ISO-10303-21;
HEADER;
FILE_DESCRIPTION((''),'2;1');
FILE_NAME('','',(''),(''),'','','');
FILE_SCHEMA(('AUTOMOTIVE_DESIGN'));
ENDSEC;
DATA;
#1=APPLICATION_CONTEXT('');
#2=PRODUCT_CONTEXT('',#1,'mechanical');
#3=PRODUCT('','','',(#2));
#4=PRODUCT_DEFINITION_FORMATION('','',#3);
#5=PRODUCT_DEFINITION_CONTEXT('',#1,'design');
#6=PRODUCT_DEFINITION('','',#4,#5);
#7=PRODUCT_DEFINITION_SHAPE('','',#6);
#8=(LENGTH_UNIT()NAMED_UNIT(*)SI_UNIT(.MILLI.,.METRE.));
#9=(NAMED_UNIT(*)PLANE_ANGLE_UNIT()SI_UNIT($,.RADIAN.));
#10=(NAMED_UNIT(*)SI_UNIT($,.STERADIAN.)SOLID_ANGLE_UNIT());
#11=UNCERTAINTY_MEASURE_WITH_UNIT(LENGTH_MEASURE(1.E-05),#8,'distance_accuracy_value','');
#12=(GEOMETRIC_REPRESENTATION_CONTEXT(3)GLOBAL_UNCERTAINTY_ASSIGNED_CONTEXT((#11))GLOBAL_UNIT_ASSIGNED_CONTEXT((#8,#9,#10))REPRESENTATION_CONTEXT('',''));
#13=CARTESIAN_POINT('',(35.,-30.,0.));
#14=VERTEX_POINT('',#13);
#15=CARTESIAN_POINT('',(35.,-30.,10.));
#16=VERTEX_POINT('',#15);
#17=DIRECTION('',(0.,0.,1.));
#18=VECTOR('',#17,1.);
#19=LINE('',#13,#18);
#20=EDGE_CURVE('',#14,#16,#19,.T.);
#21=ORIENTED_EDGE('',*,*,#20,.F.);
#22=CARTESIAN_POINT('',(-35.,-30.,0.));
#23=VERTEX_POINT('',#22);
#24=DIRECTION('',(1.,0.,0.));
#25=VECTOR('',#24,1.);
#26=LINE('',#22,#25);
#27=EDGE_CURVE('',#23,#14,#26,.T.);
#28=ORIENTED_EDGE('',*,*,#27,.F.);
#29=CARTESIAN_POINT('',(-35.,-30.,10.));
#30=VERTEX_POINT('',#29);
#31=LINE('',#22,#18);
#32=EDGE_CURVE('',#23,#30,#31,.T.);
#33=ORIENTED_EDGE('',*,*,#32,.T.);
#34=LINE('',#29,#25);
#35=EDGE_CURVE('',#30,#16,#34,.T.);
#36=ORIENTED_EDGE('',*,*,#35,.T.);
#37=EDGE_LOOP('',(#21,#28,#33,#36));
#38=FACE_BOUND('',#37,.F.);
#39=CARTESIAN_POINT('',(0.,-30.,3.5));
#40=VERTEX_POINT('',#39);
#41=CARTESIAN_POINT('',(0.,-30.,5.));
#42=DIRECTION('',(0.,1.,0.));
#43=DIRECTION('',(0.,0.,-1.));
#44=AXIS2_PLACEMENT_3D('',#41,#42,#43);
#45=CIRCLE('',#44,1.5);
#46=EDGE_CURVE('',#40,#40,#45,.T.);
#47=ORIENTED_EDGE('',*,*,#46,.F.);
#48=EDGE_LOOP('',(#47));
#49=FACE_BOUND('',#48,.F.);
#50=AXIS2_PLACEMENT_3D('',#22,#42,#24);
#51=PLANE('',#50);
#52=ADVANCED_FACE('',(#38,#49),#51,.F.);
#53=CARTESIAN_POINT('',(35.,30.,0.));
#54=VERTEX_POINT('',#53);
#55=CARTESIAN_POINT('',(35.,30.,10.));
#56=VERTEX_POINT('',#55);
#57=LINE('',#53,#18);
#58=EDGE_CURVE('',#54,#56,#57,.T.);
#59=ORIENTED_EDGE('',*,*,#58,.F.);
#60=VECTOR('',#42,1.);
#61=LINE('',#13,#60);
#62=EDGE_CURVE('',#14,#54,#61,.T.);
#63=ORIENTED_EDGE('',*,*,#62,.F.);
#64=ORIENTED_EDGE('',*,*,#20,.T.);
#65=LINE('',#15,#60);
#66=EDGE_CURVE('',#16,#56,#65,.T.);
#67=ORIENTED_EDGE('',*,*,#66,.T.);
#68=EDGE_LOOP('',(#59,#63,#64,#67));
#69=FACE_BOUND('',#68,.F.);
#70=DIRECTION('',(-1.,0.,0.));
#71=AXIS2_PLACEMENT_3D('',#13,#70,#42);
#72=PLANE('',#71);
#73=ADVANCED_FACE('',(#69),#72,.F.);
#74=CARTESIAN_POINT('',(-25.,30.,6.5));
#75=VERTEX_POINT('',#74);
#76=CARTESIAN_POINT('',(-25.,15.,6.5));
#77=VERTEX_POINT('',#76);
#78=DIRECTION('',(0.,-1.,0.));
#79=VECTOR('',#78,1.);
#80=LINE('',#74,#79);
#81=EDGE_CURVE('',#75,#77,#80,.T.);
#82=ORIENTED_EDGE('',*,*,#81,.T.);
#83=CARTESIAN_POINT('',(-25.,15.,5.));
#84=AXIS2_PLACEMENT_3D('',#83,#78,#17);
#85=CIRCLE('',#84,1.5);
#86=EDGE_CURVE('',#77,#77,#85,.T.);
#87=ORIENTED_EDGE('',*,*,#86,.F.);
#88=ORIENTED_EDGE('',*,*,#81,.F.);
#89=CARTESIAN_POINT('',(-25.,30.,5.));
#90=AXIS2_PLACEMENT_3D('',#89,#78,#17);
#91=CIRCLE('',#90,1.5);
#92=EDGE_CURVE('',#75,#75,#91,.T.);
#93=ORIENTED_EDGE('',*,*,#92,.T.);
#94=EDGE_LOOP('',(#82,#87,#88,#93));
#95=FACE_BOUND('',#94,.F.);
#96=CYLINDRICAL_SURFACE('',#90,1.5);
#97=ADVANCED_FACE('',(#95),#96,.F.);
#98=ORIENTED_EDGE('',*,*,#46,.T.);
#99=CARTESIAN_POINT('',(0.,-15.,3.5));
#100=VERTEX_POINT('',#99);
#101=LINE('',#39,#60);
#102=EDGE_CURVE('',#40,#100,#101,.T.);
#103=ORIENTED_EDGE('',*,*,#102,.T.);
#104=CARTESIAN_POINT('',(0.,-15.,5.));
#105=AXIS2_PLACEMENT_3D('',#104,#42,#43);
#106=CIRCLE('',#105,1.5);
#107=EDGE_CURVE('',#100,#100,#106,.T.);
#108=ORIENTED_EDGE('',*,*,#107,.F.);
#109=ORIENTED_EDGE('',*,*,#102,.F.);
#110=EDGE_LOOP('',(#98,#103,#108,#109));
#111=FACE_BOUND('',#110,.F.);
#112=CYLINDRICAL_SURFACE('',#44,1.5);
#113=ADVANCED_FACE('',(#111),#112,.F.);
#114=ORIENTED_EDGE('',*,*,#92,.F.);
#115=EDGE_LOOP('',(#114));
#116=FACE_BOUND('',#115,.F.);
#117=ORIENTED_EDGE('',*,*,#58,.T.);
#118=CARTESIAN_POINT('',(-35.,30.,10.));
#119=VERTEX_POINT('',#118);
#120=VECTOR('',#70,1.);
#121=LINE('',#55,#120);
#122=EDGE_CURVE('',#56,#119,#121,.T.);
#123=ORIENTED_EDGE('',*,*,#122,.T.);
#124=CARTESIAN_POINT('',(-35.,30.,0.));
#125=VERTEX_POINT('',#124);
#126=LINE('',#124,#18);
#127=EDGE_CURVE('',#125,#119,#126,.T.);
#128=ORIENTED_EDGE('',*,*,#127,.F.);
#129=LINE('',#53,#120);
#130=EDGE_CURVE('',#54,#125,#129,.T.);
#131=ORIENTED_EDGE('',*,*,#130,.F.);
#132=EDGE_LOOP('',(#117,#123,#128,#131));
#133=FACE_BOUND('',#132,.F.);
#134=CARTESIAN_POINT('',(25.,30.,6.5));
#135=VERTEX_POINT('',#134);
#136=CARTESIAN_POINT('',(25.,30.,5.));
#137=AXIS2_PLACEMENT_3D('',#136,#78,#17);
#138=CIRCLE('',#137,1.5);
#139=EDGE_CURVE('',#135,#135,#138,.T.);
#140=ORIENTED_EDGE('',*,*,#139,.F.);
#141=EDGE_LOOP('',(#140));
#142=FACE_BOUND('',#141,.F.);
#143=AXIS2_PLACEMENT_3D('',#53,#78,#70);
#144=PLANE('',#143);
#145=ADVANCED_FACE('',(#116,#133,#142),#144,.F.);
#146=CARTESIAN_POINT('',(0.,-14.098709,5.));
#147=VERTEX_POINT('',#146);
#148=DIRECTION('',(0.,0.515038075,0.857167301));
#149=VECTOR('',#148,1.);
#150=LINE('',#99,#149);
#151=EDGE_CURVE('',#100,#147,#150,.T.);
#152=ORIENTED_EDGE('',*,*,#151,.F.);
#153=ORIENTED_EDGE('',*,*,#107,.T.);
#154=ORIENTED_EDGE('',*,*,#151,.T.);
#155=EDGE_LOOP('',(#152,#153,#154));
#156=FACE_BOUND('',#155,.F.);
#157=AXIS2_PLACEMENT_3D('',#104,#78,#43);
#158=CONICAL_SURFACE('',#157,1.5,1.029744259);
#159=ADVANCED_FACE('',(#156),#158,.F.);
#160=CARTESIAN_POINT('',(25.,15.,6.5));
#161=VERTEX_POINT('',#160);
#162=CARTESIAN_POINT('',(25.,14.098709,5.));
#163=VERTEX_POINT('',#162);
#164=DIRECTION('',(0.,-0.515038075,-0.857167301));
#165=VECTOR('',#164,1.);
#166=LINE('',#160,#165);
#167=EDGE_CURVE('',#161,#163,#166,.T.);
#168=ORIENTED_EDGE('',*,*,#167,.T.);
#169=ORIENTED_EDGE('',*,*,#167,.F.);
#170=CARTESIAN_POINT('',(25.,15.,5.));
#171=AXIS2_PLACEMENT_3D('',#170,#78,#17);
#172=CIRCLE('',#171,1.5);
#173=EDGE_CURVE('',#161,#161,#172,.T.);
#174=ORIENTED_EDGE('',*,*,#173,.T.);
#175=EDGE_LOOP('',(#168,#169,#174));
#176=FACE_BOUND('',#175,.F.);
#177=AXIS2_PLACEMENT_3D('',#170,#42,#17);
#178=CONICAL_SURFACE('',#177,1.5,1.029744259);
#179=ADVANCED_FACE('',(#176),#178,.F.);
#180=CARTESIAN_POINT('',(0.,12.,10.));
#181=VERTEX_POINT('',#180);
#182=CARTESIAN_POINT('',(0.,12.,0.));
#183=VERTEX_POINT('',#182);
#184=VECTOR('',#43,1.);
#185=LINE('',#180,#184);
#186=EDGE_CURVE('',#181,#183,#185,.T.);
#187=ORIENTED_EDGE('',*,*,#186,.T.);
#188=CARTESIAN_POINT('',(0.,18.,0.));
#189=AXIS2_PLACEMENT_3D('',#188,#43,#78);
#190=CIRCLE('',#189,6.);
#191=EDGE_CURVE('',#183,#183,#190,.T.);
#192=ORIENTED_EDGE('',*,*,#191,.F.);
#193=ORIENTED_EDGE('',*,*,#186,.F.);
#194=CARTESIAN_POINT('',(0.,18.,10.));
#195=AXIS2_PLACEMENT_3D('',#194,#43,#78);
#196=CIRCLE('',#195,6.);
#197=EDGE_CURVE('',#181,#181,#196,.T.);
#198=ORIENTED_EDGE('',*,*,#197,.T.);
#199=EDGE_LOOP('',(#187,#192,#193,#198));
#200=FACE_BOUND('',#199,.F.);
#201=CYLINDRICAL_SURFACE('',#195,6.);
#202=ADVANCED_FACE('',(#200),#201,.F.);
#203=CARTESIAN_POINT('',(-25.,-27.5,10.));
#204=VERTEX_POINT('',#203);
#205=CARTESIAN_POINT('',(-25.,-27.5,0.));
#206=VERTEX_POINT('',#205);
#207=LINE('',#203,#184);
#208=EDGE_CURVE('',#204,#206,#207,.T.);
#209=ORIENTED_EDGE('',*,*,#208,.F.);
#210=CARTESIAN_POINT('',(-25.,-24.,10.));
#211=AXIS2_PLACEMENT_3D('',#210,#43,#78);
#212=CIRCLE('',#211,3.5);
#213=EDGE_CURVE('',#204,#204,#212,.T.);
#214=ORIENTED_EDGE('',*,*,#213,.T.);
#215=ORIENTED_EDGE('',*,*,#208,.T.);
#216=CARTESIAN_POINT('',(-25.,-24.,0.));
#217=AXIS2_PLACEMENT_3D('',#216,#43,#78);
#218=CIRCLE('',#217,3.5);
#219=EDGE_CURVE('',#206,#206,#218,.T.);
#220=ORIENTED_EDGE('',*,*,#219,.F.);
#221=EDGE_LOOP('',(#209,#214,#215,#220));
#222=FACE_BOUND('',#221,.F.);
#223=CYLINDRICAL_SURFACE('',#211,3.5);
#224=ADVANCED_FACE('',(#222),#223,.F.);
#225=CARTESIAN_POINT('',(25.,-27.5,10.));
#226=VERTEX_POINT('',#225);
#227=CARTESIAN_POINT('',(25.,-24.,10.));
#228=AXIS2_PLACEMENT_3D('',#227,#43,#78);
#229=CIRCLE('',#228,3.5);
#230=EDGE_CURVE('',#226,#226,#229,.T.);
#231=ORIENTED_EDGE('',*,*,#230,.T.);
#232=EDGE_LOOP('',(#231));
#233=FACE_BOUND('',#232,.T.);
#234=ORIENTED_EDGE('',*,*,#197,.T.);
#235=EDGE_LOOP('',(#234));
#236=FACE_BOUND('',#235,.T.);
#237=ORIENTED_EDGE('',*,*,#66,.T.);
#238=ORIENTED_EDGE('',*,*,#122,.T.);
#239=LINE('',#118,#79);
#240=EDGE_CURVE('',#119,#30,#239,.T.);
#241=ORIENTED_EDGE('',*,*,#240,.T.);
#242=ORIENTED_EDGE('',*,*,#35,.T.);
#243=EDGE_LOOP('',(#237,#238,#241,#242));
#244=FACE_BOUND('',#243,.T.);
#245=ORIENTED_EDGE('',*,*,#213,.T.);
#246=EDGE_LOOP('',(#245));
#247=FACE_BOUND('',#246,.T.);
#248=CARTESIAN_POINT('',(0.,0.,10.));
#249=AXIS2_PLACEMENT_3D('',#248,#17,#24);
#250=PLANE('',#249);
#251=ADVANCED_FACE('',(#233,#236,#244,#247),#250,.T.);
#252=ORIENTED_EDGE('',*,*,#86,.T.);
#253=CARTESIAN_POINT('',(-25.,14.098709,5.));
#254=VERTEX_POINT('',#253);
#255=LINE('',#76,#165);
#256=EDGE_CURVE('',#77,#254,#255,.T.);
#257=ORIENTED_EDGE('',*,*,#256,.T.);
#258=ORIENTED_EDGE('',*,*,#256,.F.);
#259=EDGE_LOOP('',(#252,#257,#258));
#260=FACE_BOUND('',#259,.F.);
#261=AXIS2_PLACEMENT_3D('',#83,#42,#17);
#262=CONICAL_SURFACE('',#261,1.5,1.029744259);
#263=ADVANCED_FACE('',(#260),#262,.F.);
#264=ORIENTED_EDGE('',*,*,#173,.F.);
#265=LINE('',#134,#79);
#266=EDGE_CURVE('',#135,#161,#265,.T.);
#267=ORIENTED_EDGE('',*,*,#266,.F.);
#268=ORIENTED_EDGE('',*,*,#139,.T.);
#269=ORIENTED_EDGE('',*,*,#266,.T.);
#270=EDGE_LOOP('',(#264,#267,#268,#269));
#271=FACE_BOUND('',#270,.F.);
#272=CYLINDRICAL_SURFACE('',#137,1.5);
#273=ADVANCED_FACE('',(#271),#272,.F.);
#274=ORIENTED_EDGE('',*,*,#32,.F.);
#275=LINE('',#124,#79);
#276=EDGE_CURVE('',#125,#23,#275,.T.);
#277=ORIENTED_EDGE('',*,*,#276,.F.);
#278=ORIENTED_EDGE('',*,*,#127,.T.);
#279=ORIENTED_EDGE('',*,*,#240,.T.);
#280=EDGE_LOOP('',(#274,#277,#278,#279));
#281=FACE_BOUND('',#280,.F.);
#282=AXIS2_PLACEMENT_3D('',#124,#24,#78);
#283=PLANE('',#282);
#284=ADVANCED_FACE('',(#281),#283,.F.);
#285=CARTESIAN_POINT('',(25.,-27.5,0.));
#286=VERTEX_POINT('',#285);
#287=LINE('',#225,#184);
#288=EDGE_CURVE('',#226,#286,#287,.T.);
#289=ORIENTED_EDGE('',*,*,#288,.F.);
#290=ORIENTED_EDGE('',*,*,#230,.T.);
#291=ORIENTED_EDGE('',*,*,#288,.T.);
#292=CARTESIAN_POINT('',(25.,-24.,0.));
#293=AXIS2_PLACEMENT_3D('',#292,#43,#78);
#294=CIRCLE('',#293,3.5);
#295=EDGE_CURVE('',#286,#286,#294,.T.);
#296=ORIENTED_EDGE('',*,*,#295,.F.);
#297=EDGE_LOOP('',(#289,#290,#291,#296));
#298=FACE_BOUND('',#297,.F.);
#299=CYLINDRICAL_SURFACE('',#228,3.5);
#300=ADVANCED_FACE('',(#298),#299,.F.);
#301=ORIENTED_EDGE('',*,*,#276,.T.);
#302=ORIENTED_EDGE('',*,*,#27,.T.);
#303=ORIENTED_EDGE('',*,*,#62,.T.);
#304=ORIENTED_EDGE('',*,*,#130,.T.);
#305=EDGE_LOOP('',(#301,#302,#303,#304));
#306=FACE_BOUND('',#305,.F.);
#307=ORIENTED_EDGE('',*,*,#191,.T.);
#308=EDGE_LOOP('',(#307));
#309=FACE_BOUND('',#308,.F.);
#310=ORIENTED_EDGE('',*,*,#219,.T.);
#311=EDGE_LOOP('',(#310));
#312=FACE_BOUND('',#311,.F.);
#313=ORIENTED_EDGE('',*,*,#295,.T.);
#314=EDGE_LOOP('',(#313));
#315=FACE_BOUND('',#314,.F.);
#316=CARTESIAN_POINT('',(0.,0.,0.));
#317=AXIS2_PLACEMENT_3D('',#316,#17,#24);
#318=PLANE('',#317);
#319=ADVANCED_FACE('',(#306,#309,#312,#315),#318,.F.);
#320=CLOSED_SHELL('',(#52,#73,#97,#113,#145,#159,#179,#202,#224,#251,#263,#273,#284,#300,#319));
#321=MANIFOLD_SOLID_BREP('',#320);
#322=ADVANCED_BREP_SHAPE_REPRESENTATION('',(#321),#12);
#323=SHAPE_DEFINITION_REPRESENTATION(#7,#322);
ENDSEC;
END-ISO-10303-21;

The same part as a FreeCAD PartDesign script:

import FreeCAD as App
import Part
import Sketcher
from FreeCAD import Vector


def add_polygon(sketch, points):
    """Adds a closed chain of lines whose ends are joined by coincident constraints."""
    first, n = sketch.GeometryCount, len(points)
    for a, b in zip(points, points[1:] + points[:1]):
        sketch.addGeometry(Part.LineSegment(App.Vector(*a, 0), App.Vector(*b, 0)), False)
    for i in range(n):
        sketch.addConstraint(Sketcher.Constraint("Coincident", first + i, 2, first + (i + 1) % n, 1))

doc = App.newDocument("Part")
body = doc.addObject("PartDesign::Body", "Body")

# Sketch on XY plane
sketch1 = doc.addObject("Sketcher::SketchObject", "Sketch")
body.addObject(sketch1)
sketch1.AttachmentSupport = (doc.XY_Plane, [""])
sketch1.MapMode = "FlatFace"
add_polygon(sketch1, [(-35, 30), (-35, -30), (35, -30), (35, 30)])  # lines 0-3
sketch1.addConstraint([
    Sketcher.Constraint("Vertical", 0),
    Sketcher.Constraint("Horizontal", 1),
    Sketcher.Constraint("Vertical", 2),
    Sketcher.Constraint("Horizontal", 3),
    Sketcher.Constraint("Symmetric", 0, 2, 2, 2, -1, 1),
    Sketcher.Constraint("DistanceX", 1, 1, 1, 2, 70.0),
    Sketcher.Constraint("DistanceY", 0, 2, 0, 1, 60.0),
])
pad1 = doc.addObject("PartDesign::Pad", "Pad")
body.addObject(pad1)
pad1.Profile = sketch1
pad1.Length = 10

# Sketch on XY plane
sketch2 = doc.addObject("Sketcher::SketchObject", "Sketch001")
body.addObject(sketch2)
sketch2.AttachmentSupport = (doc.XY_Plane, [""])
sketch2.MapMode = "FlatFace"
sketch2.AttachmentOffset = App.Placement(Vector(0, 0, 10), App.Rotation())
sketch2.addGeometry([
    Part.Circle(Vector(25, -24, 0), Vector(0, 0, 1), 3.5),
    Part.Circle(Vector(-25, -24, 0), Vector(0, 0, 1), 3.5),
], False)
sketch2.addConstraint([
    Sketcher.Constraint("Equal", 0, 1),
    Sketcher.Constraint("Symmetric", 0, 3, 1, 3, -2),
    Sketcher.Constraint("Diameter", 0, 7.0),
    Sketcher.Constraint("DistanceX", -1, 1, 0, 3, 25.0),
    Sketcher.Constraint("DistanceY", 0, 3, -1, 1, 24.0),
])
doc.recompute()
hole = doc.addObject("PartDesign::Hole", "Hole")
body.addObject(hole)
hole.Profile = sketch2
hole.ThreadType = "None"
hole.Diameter = 7
hole.DepthType = "ThroughAll"

# Sketch on XY plane
sketch3 = doc.addObject("Sketcher::SketchObject", "Sketch002")
body.addObject(sketch3)
sketch3.AttachmentSupport = (doc.XY_Plane, [""])
sketch3.MapMode = "FlatFace"
sketch3.AttachmentOffset = App.Placement(Vector(0, 0, 10), App.Rotation())
sketch3.addGeometry(Part.Circle(Vector(0, 18, 0), Vector(0, 0, 1), 6), False)
sketch3.addConstraint([
    Sketcher.Constraint("PointOnObject", 0, 3, -2),
    Sketcher.Constraint("Diameter", 0, 12.0),
    Sketcher.Constraint("DistanceY", -1, 1, 0, 3, 18.0),
])
doc.recompute()
hole2 = doc.addObject("PartDesign::Hole", "Hole001")
body.addObject(hole2)
hole2.Profile = sketch3
hole2.ThreadType = "None"
hole2.Diameter = 12
hole2.DepthType = "ThroughAll"

# Sketch on XZ plane
sketch4 = doc.addObject("Sketcher::SketchObject", "Sketch003")
body.addObject(sketch4)
sketch4.AttachmentSupport = (doc.XZ_Plane, [""])
sketch4.MapMode = "FlatFace"
sketch4.AttachmentOffset = App.Placement(Vector(0, 0, -30), App.Rotation())
sketch4.addGeometry([
    Part.Circle(Vector(25, 5, 0), Vector(0, 0, 1), 1.5),
    Part.Circle(Vector(-25, 5, 0), Vector(0, 0, 1), 1.5),
], False)
sketch4.addConstraint([
    Sketcher.Constraint("Equal", 0, 1),
    Sketcher.Constraint("Symmetric", 0, 3, 1, 3, -2),
    Sketcher.Constraint("Diameter", 0, 3.0),
    Sketcher.Constraint("DistanceX", -1, 1, 0, 3, 25.0),
    Sketcher.Constraint("DistanceY", -1, 1, 0, 3, 5.0),
])
doc.recompute()
hole3 = doc.addObject("PartDesign::Hole", "Hole002")
body.addObject(hole3)
hole3.Profile = sketch4
hole3.ThreadType = "None"
hole3.Diameter = 3
hole3.DepthType = "Dimension"
hole3.Depth = 15
hole3.DrillPoint = "Angled"
hole3.DrillPointAngle = 118
hole3.Reversed = True

# Sketch on XZ plane
sketch5 = doc.addObject("Sketcher::SketchObject", "Sketch004")
body.addObject(sketch5)
sketch5.AttachmentSupport = (doc.XZ_Plane, [""])
sketch5.MapMode = "FlatFace"
sketch5.AttachmentOffset = App.Placement(Vector(0, 0, 30), App.Rotation())
sketch5.addGeometry(Part.Circle(Vector(0, 5, 0), Vector(0, 0, 1), 1.5), False)
sketch5.addConstraint([
    Sketcher.Constraint("PointOnObject", 0, 3, -2),
    Sketcher.Constraint("Diameter", 0, 3.0),
    Sketcher.Constraint("DistanceY", -1, 1, 0, 3, 5.0),
])
doc.recompute()
hole4 = doc.addObject("PartDesign::Hole", "Hole003")
body.addObject(hole4)
hole4.Profile = sketch5
hole4.ThreadType = "None"
hole4.Diameter = 3
hole4.DepthType = "Dimension"
hole4.Depth = 15
hole4.DrillPoint = "Angled"
hole4.DrillPointAngle = 118

doc.recompute()
